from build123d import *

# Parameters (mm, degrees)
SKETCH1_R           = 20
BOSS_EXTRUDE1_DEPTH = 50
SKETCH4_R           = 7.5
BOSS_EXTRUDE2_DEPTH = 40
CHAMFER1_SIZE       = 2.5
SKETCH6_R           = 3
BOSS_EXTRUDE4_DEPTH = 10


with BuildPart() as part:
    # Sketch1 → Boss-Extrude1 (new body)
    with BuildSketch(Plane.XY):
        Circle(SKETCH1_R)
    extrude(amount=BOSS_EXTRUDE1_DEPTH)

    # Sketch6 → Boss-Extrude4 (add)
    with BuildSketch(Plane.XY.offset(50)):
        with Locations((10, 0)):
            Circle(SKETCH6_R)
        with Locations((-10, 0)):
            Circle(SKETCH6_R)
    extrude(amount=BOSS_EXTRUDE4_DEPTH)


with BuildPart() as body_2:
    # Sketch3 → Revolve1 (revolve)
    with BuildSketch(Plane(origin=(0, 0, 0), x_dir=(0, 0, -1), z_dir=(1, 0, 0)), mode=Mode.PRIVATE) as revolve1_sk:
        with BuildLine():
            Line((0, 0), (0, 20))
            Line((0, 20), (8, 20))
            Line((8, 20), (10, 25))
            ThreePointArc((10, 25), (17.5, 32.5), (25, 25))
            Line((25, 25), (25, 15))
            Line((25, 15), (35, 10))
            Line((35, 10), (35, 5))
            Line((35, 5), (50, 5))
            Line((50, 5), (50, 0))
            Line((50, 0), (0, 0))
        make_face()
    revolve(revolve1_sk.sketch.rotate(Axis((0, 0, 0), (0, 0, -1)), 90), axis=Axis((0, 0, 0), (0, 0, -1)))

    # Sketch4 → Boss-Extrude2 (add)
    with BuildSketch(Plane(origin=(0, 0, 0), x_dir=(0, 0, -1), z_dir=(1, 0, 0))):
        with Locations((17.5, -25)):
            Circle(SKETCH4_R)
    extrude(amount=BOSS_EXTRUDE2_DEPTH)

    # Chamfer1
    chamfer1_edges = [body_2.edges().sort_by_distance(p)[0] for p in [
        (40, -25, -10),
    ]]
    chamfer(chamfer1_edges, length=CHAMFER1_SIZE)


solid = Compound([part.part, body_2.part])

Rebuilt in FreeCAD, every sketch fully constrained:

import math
import FreeCAD as App
import Part
import Sketcher


def edges_at(feature, points):
    """Names of the edges that pass closest to the given points."""
    edges = feature.Shape.Edges
    near = lambda p: min(range(len(edges)), key=lambda i: edges[i].distToShape(Part.Vertex(*p))[0])
    return sorted({f"Edge{near(p) + 1}" for p in points})

doc = App.newDocument("Part")
body = doc.addObject("PartDesign::Body", "Body")

# Sketch on XY plane
sketch1 = body.newObject("Sketcher::SketchObject", "Sketch")
sketch1.AttachmentSupport = (doc.getObject("XY_Plane"), [""])
sketch1.MapMode = "FlatFace"
sketch1.addGeometry(Part.Circle(App.Vector(0, 0, 0), App.Vector(0, 0, 1), 20), False)
sketch1.addConstraint([
    Sketcher.Constraint("Coincident", 0, 3, -1, 1),
    Sketcher.Constraint("Diameter", 0, 40.0),
])
pad1 = body.newObject("PartDesign::Pad", "Pad")
pad1.Profile = sketch1
pad1.Length = 50

# Sketch on XY plane
sketch2 = body.newObject("Sketcher::SketchObject", "Sketch001")
sketch2.AttachmentSupport = (doc.getObject("XY_Plane"), [""])
sketch2.MapMode = "FlatFace"
sketch2.AttachmentOffset = App.Placement(App.Vector(0, 0, 50), App.Rotation())
sketch2.addGeometry([
    Part.Circle(App.Vector(10, 0, 0), App.Vector(0, 0, 1), 3),
    Part.Circle(App.Vector(-10, 0, 0), App.Vector(0, 0, 1), 3),
], False)
sketch2.addConstraint([
    Sketcher.Constraint("Equal", 0, 1),
    Sketcher.Constraint("Symmetric", 0, 3, 1, 3, -1, 1),
    Sketcher.Constraint("PointOnObject", 0, 3, -1),
    Sketcher.Constraint("Diameter", 0, 6.0),
    Sketcher.Constraint("DistanceX", -1, 1, 0, 3, 10.0),
])
pad2 = body.newObject("PartDesign::Pad", "Pad001")
pad2.Profile = sketch2
pad2.Length = 10
body2 = doc.addObject("PartDesign::Body", "Body001")

# Sketch on YZ plane
sketch3 = body2.newObject("Sketcher::SketchObject", "Sketch002")
sketch3.AttachmentSupport = (doc.getObject("YZ_Plane001"), [""])
sketch3.MapMode = "FlatFace"
sketch3.addGeometry([
    Part.LineSegment(App.Vector(20, 0, 0), App.Vector(0, 0, 0)),  # 0
    Part.LineSegment(App.Vector(0, 0, 0), App.Vector(0, -50, 0)),  # 1
    Part.LineSegment(App.Vector(0, -50, 0), App.Vector(5, -50, 0)),  # 2
    Part.LineSegment(App.Vector(5, -50, 0), App.Vector(5, -35, 0)),  # 3
    Part.LineSegment(App.Vector(5, -35, 0), App.Vector(10, -35, 0)),  # 4
    Part.LineSegment(App.Vector(10, -35, 0), App.Vector(15, -25, 0)),  # 5
    Part.LineSegment(App.Vector(15, -25, 0), App.Vector(25, -25, 0)),  # 6
    Part.ArcOfCircle(Part.Circle(App.Vector(25, -17.5, 0), App.Vector(0, 0, 1), 7.5), math.radians(-90), math.radians(90)),  # 7
    Part.LineSegment(App.Vector(25, -10, 0), App.Vector(20, -8, 0)),  # 8
    Part.LineSegment(App.Vector(20, -8, 0), App.Vector(20, 0, 0)),  # 9
], False)
sketch3.addConstraint([
    Sketcher.Constraint("Coincident", 0, 2, 1, 1),
    Sketcher.Constraint("Coincident", 1, 2, 2, 1),
    Sketcher.Constraint("Coincident", 2, 2, 3, 1),
    Sketcher.Constraint("Coincident", 3, 2, 4, 1),
    Sketcher.Constraint("Coincident", 4, 2, 5, 1),
    Sketcher.Constraint("Coincident", 5, 2, 6, 1),
    Sketcher.Constraint("Tangent", 6, 2, 7, 1),
    Sketcher.Constraint("Coincident", 7, 2, 8, 1),
    Sketcher.Constraint("Coincident", 8, 2, 9, 1),
    Sketcher.Constraint("Coincident", 9, 2, 0, 1),
    Sketcher.Constraint("Horizontal", 0),
    Sketcher.Constraint("Vertical", 1),
    Sketcher.Constraint("Horizontal", 2),
    Sketcher.Constraint("Vertical", 3),
    Sketcher.Constraint("Horizontal", 4),
    Sketcher.Constraint("Horizontal", 6),
    Sketcher.Constraint("Vertical", 9),
    Sketcher.Constraint("Coincident", 0, 2, -1, 1),
    Sketcher.Constraint("Vertical", 6, 2, 7, 2),
    Sketcher.Constraint("Equal", 2, 4),
    Sketcher.Constraint("Radius", 7, 7.5),
    Sketcher.Constraint("DistanceX", 0, 2, 0, 1, 20.0),
    Sketcher.Constraint("DistanceX", 2, 1, 2, 2, 5.0),
    Sketcher.Constraint("DistanceX", 6, 1, 6, 2, 10.0),
    Sketcher.Constraint("DistanceY", 1, 2, 1, 1, 50.0),
    Sketcher.Constraint("DistanceY", 3, 1, 3, 2, 15.0),
    Sketcher.Constraint("DistanceY", 9, 1, 9, 2, 8.0),
    Sketcher.Constraint("DistanceX", -1, 1, 7, 3, 25.0),
    Sketcher.Constraint("DistanceY", 5, 2, -1, 1, 25.0),
])
revolution = body2.newObject("PartDesign::Revolution", "Revolution")
revolution.Profile = sketch3
revolution.ReferenceAxis = (sketch3, ["V_Axis"])
revolution.Angle = 360

# Sketch on YZ plane
sketch4 = body2.newObject("Sketcher::SketchObject", "Sketch003")
sketch4.AttachmentSupport = (doc.getObject("YZ_Plane001"), [""])
sketch4.MapMode = "FlatFace"
sketch4.addGeometry(Part.Circle(App.Vector(-25, -17.5, 0), App.Vector(0, 0, 1), 7.5), False)
sketch4.addConstraint([
    Sketcher.Constraint("Diameter", 0, 15.0),
    Sketcher.Constraint("DistanceX", 0, 3, -1, 1, 25.0),
    Sketcher.Constraint("DistanceY", 0, 3, -1, 1, 17.5),
])
pad3 = body2.newObject("PartDesign::Pad", "Pad002")
pad3.Profile = sketch4
pad3.Length = 40
doc.recompute()

chamfer = body2.newObject("PartDesign::Chamfer", "Chamfer")
chamfer.Base = (pad3, edges_at(pad3, [(40, -25, -10)]))
chamfer.Size = 2.5

doc.recompute()
